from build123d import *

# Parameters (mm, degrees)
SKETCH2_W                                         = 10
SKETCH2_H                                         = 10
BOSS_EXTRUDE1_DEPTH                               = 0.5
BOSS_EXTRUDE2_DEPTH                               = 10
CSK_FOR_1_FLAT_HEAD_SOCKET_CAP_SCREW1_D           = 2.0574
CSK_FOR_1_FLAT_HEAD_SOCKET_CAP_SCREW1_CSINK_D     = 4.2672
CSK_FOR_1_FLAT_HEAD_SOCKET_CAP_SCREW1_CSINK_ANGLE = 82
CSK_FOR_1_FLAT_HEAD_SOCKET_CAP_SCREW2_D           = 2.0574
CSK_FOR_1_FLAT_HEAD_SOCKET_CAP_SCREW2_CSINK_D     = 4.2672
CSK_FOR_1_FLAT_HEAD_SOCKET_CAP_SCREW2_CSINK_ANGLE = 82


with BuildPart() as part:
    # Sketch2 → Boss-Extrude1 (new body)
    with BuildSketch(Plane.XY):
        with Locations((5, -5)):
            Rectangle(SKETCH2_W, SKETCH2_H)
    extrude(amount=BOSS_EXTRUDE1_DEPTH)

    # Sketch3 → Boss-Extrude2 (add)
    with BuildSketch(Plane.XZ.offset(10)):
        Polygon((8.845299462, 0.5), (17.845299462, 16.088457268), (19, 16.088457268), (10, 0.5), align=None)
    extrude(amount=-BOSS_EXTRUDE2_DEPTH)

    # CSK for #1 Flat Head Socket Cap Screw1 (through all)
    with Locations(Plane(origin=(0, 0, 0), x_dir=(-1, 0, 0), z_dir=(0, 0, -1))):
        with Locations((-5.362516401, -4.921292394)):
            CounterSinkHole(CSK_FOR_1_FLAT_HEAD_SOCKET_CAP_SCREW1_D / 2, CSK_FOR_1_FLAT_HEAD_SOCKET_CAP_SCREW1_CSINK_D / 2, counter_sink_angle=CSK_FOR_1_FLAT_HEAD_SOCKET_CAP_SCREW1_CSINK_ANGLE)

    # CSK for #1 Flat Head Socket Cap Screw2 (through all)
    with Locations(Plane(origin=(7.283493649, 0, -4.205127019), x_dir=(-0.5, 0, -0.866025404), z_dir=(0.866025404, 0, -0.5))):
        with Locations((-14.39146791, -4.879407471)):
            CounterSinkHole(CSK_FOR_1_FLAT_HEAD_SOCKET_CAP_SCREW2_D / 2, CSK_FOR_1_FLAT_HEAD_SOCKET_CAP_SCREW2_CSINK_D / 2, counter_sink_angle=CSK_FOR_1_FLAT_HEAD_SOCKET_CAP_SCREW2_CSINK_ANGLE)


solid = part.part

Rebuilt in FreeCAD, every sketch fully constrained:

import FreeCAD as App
import Part
import Sketcher
from FreeCAD import Vector
Q = App.Units.Quantity

doc = App.newDocument("Part")
body = doc.addObject("PartDesign::Body", "Body")

# Sketch on XY plane
sketch1 = body.newObject("Sketcher::SketchObject", "Sketch")
sketch1.AttachmentSupport = (doc.getObject("XY_Plane"), [""])
sketch1.MapMode = "FlatFace"
sketch1.addGeometry([
    Part.LineSegment(Vector(0, 0, 0), Vector(0, -10, 0)),
    Part.LineSegment(Vector(0, -10, 0), Vector(10, -10, 0)),
    Part.LineSegment(Vector(10, -10, 0), Vector(10, 0, 0)),
    Part.LineSegment(Vector(10, 0, 0), Vector(0, 0, 0)),
], False)
sketch1.addConstraint([
    Sketcher.Constraint("Coincident", 0, 2, 1, 1),
    Sketcher.Constraint("Coincident", 1, 2, 2, 1),
    Sketcher.Constraint("Coincident", 2, 2, 3, 1),
    Sketcher.Constraint("Coincident", 3, 2, 0, 1),
    Sketcher.Constraint("Vertical", 0),
    Sketcher.Constraint("Horizontal", 1),
    Sketcher.Constraint("Vertical", 2),
    Sketcher.Constraint("Horizontal", 3),
    Sketcher.Constraint("Coincident", 3, 2, -1, 1),
    Sketcher.Constraint("Equal", 3, 0),
    Sketcher.Constraint("DistanceX", 1, 1, 1, 2, Q("10 mm")),
])
pad1 = body.newObject("PartDesign::Pad", "Pad")
pad1.Profile = sketch1
pad1.Length = 0.5

# Sketch on XZ plane
sketch2 = body.newObject("Sketcher::SketchObject", "Sketch001")
sketch2.AttachmentSupport = (doc.getObject("XZ_Plane"), [""])
sketch2.MapMode = "FlatFace"
sketch2.AttachmentOffset = App.Placement(Vector(0, 0, 10), App.Rotation())
sketch2.addGeometry([
    Part.LineSegment(Vector(17.8, 16.1, 0), Vector(8.8, 0.5, 0)),
    Part.LineSegment(Vector(8.8, 0.5, 0), Vector(10, 0.5, 0)),
    Part.LineSegment(Vector(10, 0.5, 0), Vector(19, 16.1, 0)),
    Part.LineSegment(Vector(19, 16.1, 0), Vector(17.8, 16.1, 0)),
], False)
sketch2.addConstraint([
    Sketcher.Constraint("Coincident", 0, 2, 1, 1),
    Sketcher.Constraint("Coincident", 1, 2, 2, 1),
    Sketcher.Constraint("Coincident", 2, 2, 3, 1),
    Sketcher.Constraint("Coincident", 3, 2, 0, 1),
    Sketcher.Constraint("Horizontal", 1),
    Sketcher.Constraint("Horizontal", 3),
    Sketcher.Constraint("Parallel", 0, 2),
    Sketcher.Constraint("Angle", 0, Q("-120 deg")),
    Sketcher.Constraint("Distance", 0, Q("18 mm")),
    Sketcher.Constraint("DistanceX", -1, 1, 1, 2, Q("10 mm")),
    Sketcher.Constraint("DistanceY", -1, 1, 0, 2, Q("0.5 mm")),
    Sketcher.Constraint("DistanceX", 1, 1, 1, 2, Q("1.154701 mm")),
])
pad2 = body.newObject("PartDesign::Pad", "Pad001")
pad2.Profile = sketch2
pad2.Length = 10
pad2.Reversed = True

# Sketch on XY plane
sketch3 = body.newObject("Sketcher::SketchObject", "Sketch002")
sketch3.AttachmentSupport = (doc.getObject("XY_Plane"), [""])
sketch3.MapMode = "FlatFace"
sketch3.addGeometry(Part.Circle(Vector(5.4, -4.9, 0), Vector(0, 0, 1), 1), False)
sketch3.addConstraint([
    Sketcher.Constraint("Diameter", 0, Q("2.0574 mm")),
    Sketcher.Constraint("DistanceX", -1, 1, 0, 3, Q("5.362516 mm")),
    Sketcher.Constraint("DistanceY", 0, 3, -1, 1, Q("4.921292 mm")),
])
doc.recompute()
hole = body.newObject("PartDesign::Hole", "Hole")
hole.Profile = sketch3
hole.ThreadType = "None"
hole.Diameter = 2.0574
hole.DepthType = "ThroughAll"
hole.HoleCutType = "Countersink"
hole.HoleCutDiameter = 4.2672
hole.HoleCutCountersinkAngle = 82
hole.Reversed = True

# Sketch on an angled plane
sketch4 = body.newObject("Sketcher::SketchObject", "Sketch003")
sketch4.Placement = App.Placement(Vector(7.283494, 0, -4.205127), App.Rotation(Vector(-0.5, 0, -0.866025404), Vector(0, 1, 0), Vector(0.866025404, 0, -0.5), "ZXY"))
sketch4.addGeometry(Part.Circle(Vector(-14.4, -4.9, 0), Vector(0, 0, 1), 1), False)
sketch4.addConstraint([
    Sketcher.Constraint("Diameter", 0, Q("2.0574 mm")),
    Sketcher.Constraint("DistanceX", 0, 3, -1, 1, Q("14.391468 mm")),
    Sketcher.Constraint("DistanceY", 0, 3, -1, 1, Q("4.879407 mm")),
])
doc.recompute()
hole2 = body.newObject("PartDesign::Hole", "Hole001")
hole2.Profile = sketch4
hole2.ThreadType = "None"
hole2.Diameter = 2.0574
hole2.DepthType = "ThroughAll"
hole2.HoleCutType = "Countersink"
hole2.HoleCutDiameter = 4.2672
hole2.HoleCutCountersinkAngle = 82

doc.recompute()
